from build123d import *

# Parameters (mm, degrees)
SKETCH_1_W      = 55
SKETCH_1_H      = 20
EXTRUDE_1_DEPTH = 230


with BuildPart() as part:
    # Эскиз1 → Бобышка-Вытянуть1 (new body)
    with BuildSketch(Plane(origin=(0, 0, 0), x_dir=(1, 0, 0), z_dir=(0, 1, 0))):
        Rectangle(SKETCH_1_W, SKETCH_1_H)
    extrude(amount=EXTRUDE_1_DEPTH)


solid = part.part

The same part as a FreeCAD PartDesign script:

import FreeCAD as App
import Part
import Sketcher

V = App.Vector
Q = App.Units.Quantity


def add_polygon(sketch, points):
    """Adds a closed chain of lines whose ends are joined by coincident constraints."""
    first, n = sketch.GeometryCount, len(points)
    for a, b in zip(points, points[1:] + points[:1]):
        sketch.addGeometry(Part.LineSegment(App.Vector(*a, 0), App.Vector(*b, 0)), False)
    for i in range(n):
        sketch.addConstraint(Sketcher.Constraint("Coincident", first + i, 2, first + (i + 1) % n, 1))

doc = App.newDocument("Part")
body = doc.addObject("PartDesign::Body", "Body")

# Sketch on XZ plane
sketch1 = body.newObject("Sketcher::SketchObject", "Sketch")
sketch1.AttachmentSupport = (doc.getObject("XZ_Plane"), [""])
sketch1.MapMode = "FlatFace"
add_polygon(sketch1, [(-27.5, -10), (-27.5, 10), (27.5, 10), (27.5, -10)])  # lines 0-3
sketch1.addConstraint(Sketcher.Constraint("Vertical", 0))
sketch1.addConstraint(Sketcher.Constraint("Horizontal", 1))
sketch1.addConstraint(Sketcher.Constraint("Vertical", 2))
sketch1.addConstraint(Sketcher.Constraint("Horizontal", 3))
sketch1.addConstraint(Sketcher.Constraint("Symmetric", 0, 2, 2, 2, -1, 1))
sketch1.addConstraint(Sketcher.Constraint("DistanceX", 1, 1, 1, 2, Q("55 mm")))
sketch1.addConstraint(Sketcher.Constraint("DistanceY", 0, 1, 0, 2, Q("20 mm")))
pad1 = body.newObject("PartDesign::Pad", "Pad")
pad1.Profile = sketch1
pad1.Length = 230
pad1.Reversed = True

doc.recompute()
